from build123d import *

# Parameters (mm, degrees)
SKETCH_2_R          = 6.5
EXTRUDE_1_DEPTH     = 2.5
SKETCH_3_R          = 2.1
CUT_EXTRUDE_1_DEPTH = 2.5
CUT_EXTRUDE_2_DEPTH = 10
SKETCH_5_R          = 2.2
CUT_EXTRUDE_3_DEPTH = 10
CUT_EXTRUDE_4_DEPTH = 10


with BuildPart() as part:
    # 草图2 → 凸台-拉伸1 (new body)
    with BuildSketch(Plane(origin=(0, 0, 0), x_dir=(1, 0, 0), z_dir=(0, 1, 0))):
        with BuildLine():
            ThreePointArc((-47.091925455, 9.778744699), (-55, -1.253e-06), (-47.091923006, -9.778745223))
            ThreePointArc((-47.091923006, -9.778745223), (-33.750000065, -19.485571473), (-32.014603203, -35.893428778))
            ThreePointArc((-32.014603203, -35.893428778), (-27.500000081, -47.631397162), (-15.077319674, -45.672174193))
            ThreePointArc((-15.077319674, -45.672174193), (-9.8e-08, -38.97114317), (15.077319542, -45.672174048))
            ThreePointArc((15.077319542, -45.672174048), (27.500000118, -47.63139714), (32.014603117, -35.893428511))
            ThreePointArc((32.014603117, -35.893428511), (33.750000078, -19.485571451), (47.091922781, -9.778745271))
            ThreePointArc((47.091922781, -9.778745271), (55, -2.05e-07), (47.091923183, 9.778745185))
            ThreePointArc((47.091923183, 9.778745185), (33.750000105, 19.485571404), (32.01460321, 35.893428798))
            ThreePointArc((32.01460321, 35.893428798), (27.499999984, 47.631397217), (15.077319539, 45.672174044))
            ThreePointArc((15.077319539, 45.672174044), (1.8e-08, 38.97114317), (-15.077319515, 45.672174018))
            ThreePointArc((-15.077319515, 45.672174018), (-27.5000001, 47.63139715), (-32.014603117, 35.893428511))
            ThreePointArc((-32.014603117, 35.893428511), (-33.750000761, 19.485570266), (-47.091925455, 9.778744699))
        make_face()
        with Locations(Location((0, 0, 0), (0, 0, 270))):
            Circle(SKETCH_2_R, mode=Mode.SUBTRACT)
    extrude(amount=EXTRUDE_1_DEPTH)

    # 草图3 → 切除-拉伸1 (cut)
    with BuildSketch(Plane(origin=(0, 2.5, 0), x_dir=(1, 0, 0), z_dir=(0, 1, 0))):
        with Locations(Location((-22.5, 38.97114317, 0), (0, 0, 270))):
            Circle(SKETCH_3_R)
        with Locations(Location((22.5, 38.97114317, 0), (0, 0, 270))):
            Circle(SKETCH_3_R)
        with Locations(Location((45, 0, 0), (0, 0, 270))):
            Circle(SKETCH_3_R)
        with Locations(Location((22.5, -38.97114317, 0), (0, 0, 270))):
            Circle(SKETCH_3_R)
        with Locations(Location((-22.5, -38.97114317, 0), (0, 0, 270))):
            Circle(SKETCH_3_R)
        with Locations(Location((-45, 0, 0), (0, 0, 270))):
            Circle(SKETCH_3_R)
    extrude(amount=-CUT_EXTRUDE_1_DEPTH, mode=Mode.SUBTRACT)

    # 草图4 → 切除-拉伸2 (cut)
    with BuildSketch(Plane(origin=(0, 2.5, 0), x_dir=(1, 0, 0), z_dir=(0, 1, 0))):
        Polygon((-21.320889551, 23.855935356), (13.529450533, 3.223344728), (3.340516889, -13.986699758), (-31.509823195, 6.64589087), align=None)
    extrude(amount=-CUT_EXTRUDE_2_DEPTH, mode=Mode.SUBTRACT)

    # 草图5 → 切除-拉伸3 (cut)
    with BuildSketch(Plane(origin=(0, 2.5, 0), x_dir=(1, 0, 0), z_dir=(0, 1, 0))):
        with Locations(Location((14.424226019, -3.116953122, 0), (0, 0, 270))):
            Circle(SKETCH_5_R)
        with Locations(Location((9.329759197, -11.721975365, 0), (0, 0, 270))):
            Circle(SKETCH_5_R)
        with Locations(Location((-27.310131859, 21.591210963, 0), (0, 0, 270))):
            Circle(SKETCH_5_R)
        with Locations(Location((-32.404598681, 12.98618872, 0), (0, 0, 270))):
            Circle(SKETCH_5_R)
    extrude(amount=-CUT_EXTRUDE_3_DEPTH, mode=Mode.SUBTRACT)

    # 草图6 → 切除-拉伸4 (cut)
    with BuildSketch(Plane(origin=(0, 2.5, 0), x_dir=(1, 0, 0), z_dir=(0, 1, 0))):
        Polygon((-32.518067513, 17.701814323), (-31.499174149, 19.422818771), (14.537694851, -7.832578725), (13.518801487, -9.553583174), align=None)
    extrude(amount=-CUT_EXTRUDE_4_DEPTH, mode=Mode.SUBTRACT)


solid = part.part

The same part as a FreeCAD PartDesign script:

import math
import FreeCAD as App
import Part
import Sketcher

V = App.Vector
Q = App.Units.Quantity


def add_polygon(sketch, points):
    """Adds a closed chain of lines whose ends are joined by coincident constraints."""
    first, n = sketch.GeometryCount, len(points)
    for a, b in zip(points, points[1:] + points[:1]):
        sketch.addGeometry(Part.LineSegment(App.Vector(*a, 0), App.Vector(*b, 0)), False)
    for i in range(n):
        sketch.addConstraint(Sketcher.Constraint("Coincident", first + i, 2, first + (i + 1) % n, 1))

doc = App.newDocument("Part")
body = doc.addObject("PartDesign::Body", "Body")

# Sketch on XZ plane
sketch1 = body.newObject("Sketcher::SketchObject", "Sketch")
sketch1.AttachmentSupport = (doc.getObject("XZ_Plane"), [""])
sketch1.MapMode = "FlatFace"
sketch1.addGeometry(Part.ArcOfCircle(Part.Circle(V(-45, 0, 0), V(0, 0, 1), 10), math.radians(102.075023), math.radians(257.924962)), False)
sketch1.addGeometry(Part.ArcOfCircle(Part.Circle(V(-51.341141, 29.641822, 0), V(0, 0, 1), 20.3125), math.radians(-77.924979), math.radians(17.924978)), False)
sketch1.addGeometry(Part.ArcOfCircle(Part.Circle(V(-22.5, 38.971143, 0), V(0, 0, 1), 10), math.radians(42.075023), math.radians(197.924978)), False)
sketch1.addGeometry(Part.ArcOfCircle(Part.Circle(V(0, 59.283643, 0), V(0, 0, 1), 20.3125), math.radians(-137.924978), math.radians(-42.075022)), False)
sketch1.addGeometry(Part.ArcOfCircle(Part.Circle(V(22.5, 38.971143, 0), V(0, 0, 1), 10), math.radians(-17.92498), math.radians(137.924978)), False)
sketch1.addGeometry(Part.ArcOfCircle(Part.Circle(V(51.341141, 29.641822, 0), V(0, 0, 1), 20.3125), math.radians(162.075023), math.radians(257.924978)), False)
sketch1.addGeometry(Part.ArcOfCircle(Part.Circle(V(45, 0, 0), V(0, 0, 1), 10), math.radians(-77.924976), math.radians(77.924978)), False)
sketch1.addGeometry(Part.ArcOfCircle(Part.Circle(V(51.341141, -29.641822, 0), V(0, 0, 1), 20.3125), math.radians(102.075021), math.radians(197.924978)), False)
sketch1.addGeometry(Part.ArcOfCircle(Part.Circle(V(22.5, -38.971143, 0), V(0, 0, 1), 10), math.radians(-137.924978), math.radians(17.924978)), False)
sketch1.addGeometry(Part.ArcOfCircle(Part.Circle(V(0, -59.283643, 0), V(0, 0, 1), 20.3125), math.radians(42.075022), math.radians(137.924978)), False)
sketch1.addGeometry(Part.ArcOfCircle(Part.Circle(V(-22.5, -38.971143, 0), V(0, 0, 1), 10), math.radians(162.07502), math.radians(317.924979)), False)
sketch1.addGeometry(Part.ArcOfCircle(Part.Circle(V(-51.341141, -29.641822, 0), V(0, 0, 1), 20.3125), math.radians(-17.924977), math.radians(77.924986)), False)
sketch1.addGeometry(Part.Circle(V(0, 0, 0), V(0, 0, 1), 6.5), False)
sketch1.addConstraint(Sketcher.Constraint("Tangent", 0, 1, 1, 1))
sketch1.addConstraint(Sketcher.Constraint("Tangent", 1, 2, 2, 2))
sketch1.addConstraint(Sketcher.Constraint("Tangent", 2, 1, 3, 1))
sketch1.addConstraint(Sketcher.Constraint("Tangent", 3, 2, 4, 2))
sketch1.addConstraint(Sketcher.Constraint("Tangent", 4, 1, 5, 1))
sketch1.addConstraint(Sketcher.Constraint("Tangent", 5, 2, 6, 2))
sketch1.addConstraint(Sketcher.Constraint("Tangent", 6, 1, 7, 1))
sketch1.addConstraint(Sketcher.Constraint("Tangent", 7, 2, 8, 2))
sketch1.addConstraint(Sketcher.Constraint("Tangent", 8, 1, 9, 1))
sketch1.addConstraint(Sketcher.Constraint("Tangent", 9, 2, 10, 2))
sketch1.addConstraint(Sketcher.Constraint("Tangent", 10, 1, 11, 1))
sketch1.addConstraint(Sketcher.Constraint("Tangent", 11, 2, 0, 2))
sketch1.addConstraint(Sketcher.Constraint("Coincident", 12, 3, -1, 1))
sketch1.addConstraint(Sketcher.Constraint("Equal", 0, 2))
sketch1.addConstraint(Sketcher.Constraint("Equal", 1, 3))
sketch1.addConstraint(Sketcher.Constraint("Equal", 2, 4))
sketch1.addConstraint(Sketcher.Constraint("Equal", 3, 5))
sketch1.addConstraint(Sketcher.Constraint("Equal", 4, 6))
sketch1.addConstraint(Sketcher.Constraint("Equal", 5, 7))
sketch1.addConstraint(Sketcher.Constraint("Equal", 6, 8))
sketch1.addConstraint(Sketcher.Constraint("Equal", 7, 9))
sketch1.addConstraint(Sketcher.Constraint("Equal", 8, 10))
sketch1.addConstraint(Sketcher.Constraint("Equal", 9, 11))
sketch1.addConstraint(Sketcher.Constraint("Symmetric", 0, 3, 6, 3, -1, 1))
sketch1.addConstraint(Sketcher.Constraint("Symmetric", 2, 3, 8, 3, -1, 1))
sketch1.addConstraint(Sketcher.Constraint("Symmetric", 4, 3, 10, 3, -1, 1))
sketch1.addConstraint(Sketcher.Constraint("Symmetric", 2, 3, 4, 3, -2))
sketch1.addConstraint(Sketcher.Constraint("PointOnObject", 0, 3, -1))
sketch1.addConstraint(Sketcher.Constraint("Diameter", 12, Q("13 mm")))
sketch1.addConstraint(Sketcher.Constraint("Radius", 0, Q("10 mm")))
sketch1.addConstraint(Sketcher.Constraint("DistanceX", 0, 3, -1, 1, Q("45 mm")))
sketch1.addConstraint(Sketcher.Constraint("DistanceX", 2, 3, 4, 3, Q("45 mm")))
sketch1.addConstraint(Sketcher.Constraint("Radius", 1, Q("20.3125 mm")))
sketch1.addConstraint(Sketcher.Constraint("DistanceY", 10, 3, 11, 2, Q("29.192398 mm")))
pad1 = body.newObject("PartDesign::Pad", "Pad")
pad1.Profile = sketch1
pad1.Length = 2.5
pad1.Reversed = True

# Sketch on XZ plane
sketch2 = body.newObject("Sketcher::SketchObject", "Sketch001")
sketch2.AttachmentSupport = (doc.getObject("XZ_Plane"), [""])
sketch2.MapMode = "FlatFace"
sketch2.AttachmentOffset = App.Placement(V(0, 0, -2.5), App.Rotation())
sketch2.addGeometry(Part.Circle(V(-22.5, -38.971143, 0), V(0, 0, 1), 2.1), False)
sketch2.addGeometry(Part.Circle(V(22.5, -38.971143, 0), V(0, 0, 1), 2.1), False)
sketch2.addGeometry(Part.Circle(V(45, 0, 0), V(0, 0, 1), 2.1), False)
sketch2.addGeometry(Part.Circle(V(22.5, 38.971143, 0), V(0, 0, 1), 2.1), False)
sketch2.addGeometry(Part.Circle(V(-22.5, 38.971143, 0), V(0, 0, 1), 2.1), False)
sketch2.addGeometry(Part.Circle(V(-45, 0, 0), V(0, 0, 1), 2.1), False)
sketch2.addConstraint(Sketcher.Constraint("Equal", 0, 1))
sketch2.addConstraint(Sketcher.Constraint("Equal", 1, 2))
sketch2.addConstraint(Sketcher.Constraint("Equal", 2, 3))
sketch2.addConstraint(Sketcher.Constraint("Equal", 3, 4))
sketch2.addConstraint(Sketcher.Constraint("Equal", 4, 5))
sketch2.addConstraint(Sketcher.Constraint("Symmetric", 0, 3, 3, 3, -1, 1))
sketch2.addConstraint(Sketcher.Constraint("Symmetric", 1, 3, 4, 3, -1, 1))
sketch2.addConstraint(Sketcher.Constraint("Symmetric", 2, 3, 5, 3, -1, 1))
sketch2.addConstraint(Sketcher.Constraint("Symmetric", 0, 3, 1, 3, -2))
sketch2.addConstraint(Sketcher.Constraint("PointOnObject", 2, 3, -1))
sketch2.addConstraint(Sketcher.Constraint("Diameter", 0, Q("4.2 mm")))
sketch2.addConstraint(Sketcher.Constraint("DistanceX", -1, 1, 2, 3, Q("45 mm")))
sketch2.addConstraint(Sketcher.Constraint("DistanceX", 0, 3, 1, 3, Q("45 mm")))
sketch2.addConstraint(Sketcher.Constraint("DistanceY", 0, 3, -1, 1, Q("38.971143 mm")))
pocket1 = body.newObject("PartDesign::Pocket", "Pocket")
pocket1.Profile = sketch2
pocket1.Length = 2.5
pocket1.Reversed = True

# Sketch on XZ plane
sketch3 = body.newObject("Sketcher::SketchObject", "Sketch002")
sketch3.AttachmentSupport = (doc.getObject("XZ_Plane"), [""])
sketch3.MapMode = "FlatFace"
sketch3.AttachmentOffset = App.Placement(V(0, 0, -2.5), App.Rotation())
add_polygon(sketch3, [(13.529451, -3.223345), (-21.32089, -23.855935), (-31.509823, -6.645891), (3.340517, 13.9867)])  # lines 0-3
sketch3.addConstraint(Sketcher.Constraint("Perpendicular", 0, 1))
sketch3.addConstraint(Sketcher.Constraint("Perpendicular", 1, 2))
sketch3.addConstraint(Sketcher.Constraint("Perpendicular", 2, 3))
sketch3.addConstraint(Sketcher.Constraint("Distance", 1, Q("20 mm")))
sketch3.addConstraint(Sketcher.Constraint("Distance", 0, Q("40.5 mm")))
sketch3.addConstraint(Sketcher.Constraint("DistanceY", -1, 1, 2, 2, Q("13.9867 mm")))
sketch3.addConstraint(Sketcher.Constraint("DistanceX", 0, 2, -1, 1, Q("21.32089 mm")))
sketch3.addConstraint(Sketcher.Constraint("DistanceY", 1, 2, -1, 1, Q("6.645891 mm")))
pocket2 = body.newObject("PartDesign::Pocket", "Pocket001")
pocket2.Profile = sketch3
pocket2.Length = 10
pocket2.Reversed = True

# Sketch on XZ plane
sketch4 = body.newObject("Sketcher::SketchObject", "Sketch003")
sketch4.AttachmentSupport = (doc.getObject("XZ_Plane"), [""])
sketch4.MapMode = "FlatFace"
sketch4.AttachmentOffset = App.Placement(V(0, 0, -2.5), App.Rotation())
sketch4.addGeometry(Part.Circle(V(14.424226, 3.116953, 0), V(0, 0, 1), 2.2), False)
sketch4.addGeometry(Part.Circle(V(9.329759, 11.721975, 0), V(0, 0, 1), 2.2), False)
sketch4.addGeometry(Part.Circle(V(-27.310132, -21.591211, 0), V(0, 0, 1), 2.2), False)
sketch4.addGeometry(Part.Circle(V(-32.404599, -12.986189, 0), V(0, 0, 1), 2.2), False)
sketch4.addConstraint(Sketcher.Constraint("Equal", 0, 1))
sketch4.addConstraint(Sketcher.Constraint("Equal", 1, 2))
sketch4.addConstraint(Sketcher.Constraint("Equal", 2, 3))
sketch4.addConstraint(Sketcher.Constraint("Diameter", 0, Q("4.4 mm")))
sketch4.addConstraint(Sketcher.Constraint("DistanceX", 3, 3, -1, 1, Q("32.404599 mm")))
sketch4.addConstraint(Sketcher.Constraint("DistanceX", -1, 1, 1, 3, Q("9.329759 mm")))
sketch4.addConstraint(Sketcher.Constraint("DistanceX", 2, 3, -1, 1, Q("27.310132 mm")))
sketch4.addConstraint(Sketcher.Constraint("DistanceY", 2, 3, -1, 1, Q("21.591211 mm")))
sketch4.addConstraint(Sketcher.Constraint("DistanceY", 3, 3, -1, 1, Q("12.986189 mm")))
sketch4.addConstraint(Sketcher.Constraint("DistanceY", 3, 3, 0, 3, Q("16.103142 mm")))
sketch4.addConstraint(Sketcher.Constraint("DistanceX", -1, 1, 0, 3, Q("14.424226 mm")))
sketch4.addConstraint(Sketcher.Constraint("DistanceY", -1, 1, 1, 3, Q("11.721975 mm")))
pocket3 = body.newObject("PartDesign::Pocket", "Pocket002")
pocket3.Profile = sketch4
pocket3.Length = 10
pocket3.Reversed = True

# Sketch on XZ plane
sketch5 = body.newObject("Sketcher::SketchObject", "Sketch004")
sketch5.AttachmentSupport = (doc.getObject("XZ_Plane"), [""])
sketch5.MapMode = "FlatFace"
sketch5.AttachmentOffset = App.Placement(V(0, 0, -2.5), App.Rotation())
add_polygon(sketch5, [(-31.499174, -19.422819), (-32.518068, -17.701814), (13.518801, 9.553583), (14.537695, 7.832579)])  # lines 0-3
sketch5.addConstraint(Sketcher.Constraint("Perpendicular", 0, 1))
sketch5.addConstraint(Sketcher.Constraint("Perpendicular", 1, 2))
sketch5.addConstraint(Sketcher.Constraint("Perpendicular", 2, 3))
sketch5.addConstraint(Sketcher.Constraint("Distance", 0, Q("2 mm")))
sketch5.addConstraint(Sketcher.Constraint("Distance", 1, Q("53.5 mm")))
sketch5.addConstraint(Sketcher.Constraint("DistanceX", -1, 1, 1, 2, Q("13.518801 mm")))
sketch5.addConstraint(Sketcher.Constraint("DistanceY", 3, 2, 1, 2, Q("28.976402 mm")))
sketch5.addConstraint(Sketcher.Constraint("DistanceY", -1, 1, 2, 2, Q("7.832579 mm")))
pocket4 = body.newObject("PartDesign::Pocket", "Pocket003")
pocket4.Profile = sketch5
pocket4.Length = 10
pocket4.Reversed = True

doc.recompute()
